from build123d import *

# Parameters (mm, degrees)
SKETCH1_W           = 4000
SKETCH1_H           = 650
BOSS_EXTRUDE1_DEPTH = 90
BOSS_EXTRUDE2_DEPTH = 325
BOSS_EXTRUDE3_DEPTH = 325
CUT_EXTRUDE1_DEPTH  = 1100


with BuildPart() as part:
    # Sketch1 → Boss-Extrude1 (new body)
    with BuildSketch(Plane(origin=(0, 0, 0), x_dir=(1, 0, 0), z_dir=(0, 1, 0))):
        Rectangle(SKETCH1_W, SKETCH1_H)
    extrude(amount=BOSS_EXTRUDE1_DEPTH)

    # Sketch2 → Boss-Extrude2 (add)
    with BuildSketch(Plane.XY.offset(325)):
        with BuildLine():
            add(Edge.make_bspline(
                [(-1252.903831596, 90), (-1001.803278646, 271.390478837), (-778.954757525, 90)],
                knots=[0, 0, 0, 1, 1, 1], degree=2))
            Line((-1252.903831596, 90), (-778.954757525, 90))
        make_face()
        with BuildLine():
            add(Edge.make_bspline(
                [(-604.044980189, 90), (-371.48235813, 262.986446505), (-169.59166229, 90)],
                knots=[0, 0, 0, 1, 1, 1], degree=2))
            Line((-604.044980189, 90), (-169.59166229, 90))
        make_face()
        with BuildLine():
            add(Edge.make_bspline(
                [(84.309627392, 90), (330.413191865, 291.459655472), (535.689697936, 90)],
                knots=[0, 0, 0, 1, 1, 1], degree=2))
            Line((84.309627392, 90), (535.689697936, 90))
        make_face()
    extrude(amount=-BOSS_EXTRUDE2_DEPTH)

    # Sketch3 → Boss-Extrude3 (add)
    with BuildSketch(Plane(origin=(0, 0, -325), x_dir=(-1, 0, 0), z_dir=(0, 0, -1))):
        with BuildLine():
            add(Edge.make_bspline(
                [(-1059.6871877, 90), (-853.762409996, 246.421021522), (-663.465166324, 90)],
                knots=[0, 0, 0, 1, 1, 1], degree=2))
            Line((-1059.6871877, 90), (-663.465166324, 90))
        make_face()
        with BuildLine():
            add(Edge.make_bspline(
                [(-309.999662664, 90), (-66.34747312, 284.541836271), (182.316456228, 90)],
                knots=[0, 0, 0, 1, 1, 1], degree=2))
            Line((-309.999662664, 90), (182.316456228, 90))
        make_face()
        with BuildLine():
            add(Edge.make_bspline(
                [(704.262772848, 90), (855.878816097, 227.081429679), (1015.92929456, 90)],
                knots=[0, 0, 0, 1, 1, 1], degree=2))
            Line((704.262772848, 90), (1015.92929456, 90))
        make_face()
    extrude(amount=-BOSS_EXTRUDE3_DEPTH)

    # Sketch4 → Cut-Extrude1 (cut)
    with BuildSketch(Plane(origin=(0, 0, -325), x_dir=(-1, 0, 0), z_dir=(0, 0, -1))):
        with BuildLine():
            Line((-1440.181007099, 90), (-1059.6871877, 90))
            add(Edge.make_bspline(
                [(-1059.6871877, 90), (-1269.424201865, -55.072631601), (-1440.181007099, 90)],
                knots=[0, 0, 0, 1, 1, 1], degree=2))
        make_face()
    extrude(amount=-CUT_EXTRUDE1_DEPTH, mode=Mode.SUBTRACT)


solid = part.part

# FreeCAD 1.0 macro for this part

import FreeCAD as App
import Part
import Sketcher
Q = App.Units.Quantity


def add_polygon(sketch, points):
    """Adds a closed chain of lines whose ends are joined by coincident constraints."""
    first, n = sketch.GeometryCount, len(points)
    for a, b in zip(points, points[1:] + points[:1]):
        sketch.addGeometry(Part.LineSegment(App.Vector(*a, 0), App.Vector(*b, 0)), False)
    for i in range(n):
        sketch.addConstraint(Sketcher.Constraint("Coincident", first + i, 2, first + (i + 1) % n, 1))

doc = App.newDocument("Part")
body = doc.addObject("PartDesign::Body", "Body")

sketch1 = doc.addObject("Sketcher::SketchObject", "Sketch")
body.addObject(sketch1)
sketch1.AttachmentSupport = (doc.XZ_Plane, [""])
sketch1.MapMode = "FlatFace"
add_polygon(sketch1, [(-2000, -325), (-2000, 325), (2000, 325), (2000, -325)])
sketch1.addConstraint([
    Sketcher.Constraint("Vertical", 0),
    Sketcher.Constraint("Horizontal", 1),
    Sketcher.Constraint("Vertical", 2),
    Sketcher.Constraint("Horizontal", 3),
    Sketcher.Constraint("Symmetric", 0, 2, 2, 2, -1, 1),
    Sketcher.Constraint("DistanceX", 1, 1, 1, 2, Q("4000 mm")),
    Sketcher.Constraint("DistanceY", 0, 1, 0, 2, Q("650 mm")),
])
pad1 = doc.addObject("PartDesign::Pad", "Pad")
body.addObject(pad1)
pad1.Profile = sketch1
pad1.Length = 90
pad1.Reversed = True

sketch2 = doc.addObject("Sketcher::SketchObject", "Sketch001")
body.addObject(sketch2)
sketch2.AttachmentSupport = (doc.XY_Plane, [""])
sketch2.MapMode = "FlatFace"
sketch2.AttachmentOffset = App.Placement(App.Vector(0, 0, 325), App.Rotation())
sketch2.addGeometry([
    Part.BSplineCurve([App.Vector(-1252.903832, 90, 0), App.Vector(-1001.803279, 271.390479, 0), App.Vector(-778.954758, 90, 0)], [3, 3], [0, 1], False, 2, [1, 1, 1], False),
    Part.LineSegment(App.Vector(-1252.903832, 90, 0), App.Vector(-778.954758, 90, 0)),
    Part.BSplineCurve([App.Vector(-604.04498, 90, 0), App.Vector(-371.482358, 262.986447, 0), App.Vector(-169.591662, 90, 0)], [3, 3], [0, 1], False, 2, [1, 1, 1], False),
    Part.LineSegment(App.Vector(-604.04498, 90, 0), App.Vector(-169.591662, 90, 0)),
    Part.BSplineCurve([App.Vector(84.309627, 90, 0), App.Vector(330.413192, 291.459655, 0), App.Vector(535.689698, 90, 0)], [3, 3], [0, 1], False, 2, [1, 1, 1], False),
    Part.LineSegment(App.Vector(84.309627, 90, 0), App.Vector(535.689698, 90, 0)),
], False)
sketch2.addConstraint([
    Sketcher.Constraint("Block", 0),
    Sketcher.Constraint("Block", 2),
    Sketcher.Constraint("Block", 4),
    Sketcher.Constraint("Coincident", 0, 1, 1, 1),
    Sketcher.Constraint("Coincident", 1, 2, 0, 2),
    Sketcher.Constraint("Coincident", 2, 1, 3, 1),
    Sketcher.Constraint("Coincident", 3, 2, 2, 2),
    Sketcher.Constraint("Coincident", 4, 1, 5, 1),
    Sketcher.Constraint("Coincident", 5, 2, 4, 2),
])
pad2 = doc.addObject("PartDesign::Pad", "Pad001")
body.addObject(pad2)
pad2.Profile = sketch2
pad2.Length = 325
pad2.Reversed = True

sketch3 = doc.addObject("Sketcher::SketchObject", "Sketch002")
body.addObject(sketch3)
sketch3.AttachmentSupport = (doc.XY_Plane, [""])
sketch3.MapMode = "FlatFace"
sketch3.AttachmentOffset = App.Placement(App.Vector(0, 0, -325), App.Rotation())
sketch3.addGeometry([
    Part.BSplineCurve([App.Vector(1059.687188, 90, 0), App.Vector(853.76241, 246.421022, 0), App.Vector(663.465166, 90, 0)], [3, 3], [0, 1], False, 2, [1, 1, 1], False),
    Part.LineSegment(App.Vector(1059.687188, 90, 0), App.Vector(663.465166, 90, 0)),
    Part.BSplineCurve([App.Vector(309.999663, 90, 0), App.Vector(66.347473, 284.541836, 0), App.Vector(-182.316456, 90, 0)], [3, 3], [0, 1], False, 2, [1, 1, 1], False),
    Part.LineSegment(App.Vector(309.999663, 90, 0), App.Vector(-182.316456, 90, 0)),
    Part.BSplineCurve([App.Vector(-704.262773, 90, 0), App.Vector(-855.878816, 227.08143, 0), App.Vector(-1015.929295, 90, 0)], [3, 3], [0, 1], False, 2, [1, 1, 1], False),
    Part.LineSegment(App.Vector(-704.262773, 90, 0), App.Vector(-1015.929295, 90, 0)),
], False)
sketch3.addConstraint([
    Sketcher.Constraint("Block", 0),
    Sketcher.Constraint("Block", 2),
    Sketcher.Constraint("Block", 4),
    Sketcher.Constraint("Coincident", 0, 1, 1, 1),
    Sketcher.Constraint("Coincident", 1, 2, 0, 2),
    Sketcher.Constraint("Coincident", 2, 1, 3, 1),
    Sketcher.Constraint("Coincident", 3, 2, 2, 2),
    Sketcher.Constraint("Coincident", 4, 1, 5, 1),
    Sketcher.Constraint("Coincident", 5, 2, 4, 2),
])
pad3 = doc.addObject("PartDesign::Pad", "Pad002")
body.addObject(pad3)
pad3.Profile = sketch3
pad3.Length = 325

sketch4 = doc.addObject("Sketcher::SketchObject", "Sketch003")
body.addObject(sketch4)
sketch4.AttachmentSupport = (doc.XY_Plane, [""])
sketch4.MapMode = "FlatFace"
sketch4.AttachmentOffset = App.Placement(App.Vector(0, 0, -325), App.Rotation())
sketch4.addGeometry([
    Part.LineSegment(App.Vector(1059.687188, 90, 0), App.Vector(1440.181007, 90, 0)),
    Part.BSplineCurve([App.Vector(1059.687188, 90, 0), App.Vector(1269.424202, -55.072632, 0), App.Vector(1440.181007, 90, 0)], [3, 3], [0, 1], False, 2, [1, 1, 1], False),
], False)
sketch4.addConstraint([
    Sketcher.Constraint("Block", 1),
    Sketcher.Constraint("Coincident", 0, 1, 1, 1),
    Sketcher.Constraint("Coincident", 1, 2, 0, 2),
])
pocket1 = doc.addObject("PartDesign::Pocket", "Pocket")
body.addObject(pocket1)
pocket1.Profile = sketch4
pocket1.Length = 1100
pocket1.Reversed = True

doc.recompute()
